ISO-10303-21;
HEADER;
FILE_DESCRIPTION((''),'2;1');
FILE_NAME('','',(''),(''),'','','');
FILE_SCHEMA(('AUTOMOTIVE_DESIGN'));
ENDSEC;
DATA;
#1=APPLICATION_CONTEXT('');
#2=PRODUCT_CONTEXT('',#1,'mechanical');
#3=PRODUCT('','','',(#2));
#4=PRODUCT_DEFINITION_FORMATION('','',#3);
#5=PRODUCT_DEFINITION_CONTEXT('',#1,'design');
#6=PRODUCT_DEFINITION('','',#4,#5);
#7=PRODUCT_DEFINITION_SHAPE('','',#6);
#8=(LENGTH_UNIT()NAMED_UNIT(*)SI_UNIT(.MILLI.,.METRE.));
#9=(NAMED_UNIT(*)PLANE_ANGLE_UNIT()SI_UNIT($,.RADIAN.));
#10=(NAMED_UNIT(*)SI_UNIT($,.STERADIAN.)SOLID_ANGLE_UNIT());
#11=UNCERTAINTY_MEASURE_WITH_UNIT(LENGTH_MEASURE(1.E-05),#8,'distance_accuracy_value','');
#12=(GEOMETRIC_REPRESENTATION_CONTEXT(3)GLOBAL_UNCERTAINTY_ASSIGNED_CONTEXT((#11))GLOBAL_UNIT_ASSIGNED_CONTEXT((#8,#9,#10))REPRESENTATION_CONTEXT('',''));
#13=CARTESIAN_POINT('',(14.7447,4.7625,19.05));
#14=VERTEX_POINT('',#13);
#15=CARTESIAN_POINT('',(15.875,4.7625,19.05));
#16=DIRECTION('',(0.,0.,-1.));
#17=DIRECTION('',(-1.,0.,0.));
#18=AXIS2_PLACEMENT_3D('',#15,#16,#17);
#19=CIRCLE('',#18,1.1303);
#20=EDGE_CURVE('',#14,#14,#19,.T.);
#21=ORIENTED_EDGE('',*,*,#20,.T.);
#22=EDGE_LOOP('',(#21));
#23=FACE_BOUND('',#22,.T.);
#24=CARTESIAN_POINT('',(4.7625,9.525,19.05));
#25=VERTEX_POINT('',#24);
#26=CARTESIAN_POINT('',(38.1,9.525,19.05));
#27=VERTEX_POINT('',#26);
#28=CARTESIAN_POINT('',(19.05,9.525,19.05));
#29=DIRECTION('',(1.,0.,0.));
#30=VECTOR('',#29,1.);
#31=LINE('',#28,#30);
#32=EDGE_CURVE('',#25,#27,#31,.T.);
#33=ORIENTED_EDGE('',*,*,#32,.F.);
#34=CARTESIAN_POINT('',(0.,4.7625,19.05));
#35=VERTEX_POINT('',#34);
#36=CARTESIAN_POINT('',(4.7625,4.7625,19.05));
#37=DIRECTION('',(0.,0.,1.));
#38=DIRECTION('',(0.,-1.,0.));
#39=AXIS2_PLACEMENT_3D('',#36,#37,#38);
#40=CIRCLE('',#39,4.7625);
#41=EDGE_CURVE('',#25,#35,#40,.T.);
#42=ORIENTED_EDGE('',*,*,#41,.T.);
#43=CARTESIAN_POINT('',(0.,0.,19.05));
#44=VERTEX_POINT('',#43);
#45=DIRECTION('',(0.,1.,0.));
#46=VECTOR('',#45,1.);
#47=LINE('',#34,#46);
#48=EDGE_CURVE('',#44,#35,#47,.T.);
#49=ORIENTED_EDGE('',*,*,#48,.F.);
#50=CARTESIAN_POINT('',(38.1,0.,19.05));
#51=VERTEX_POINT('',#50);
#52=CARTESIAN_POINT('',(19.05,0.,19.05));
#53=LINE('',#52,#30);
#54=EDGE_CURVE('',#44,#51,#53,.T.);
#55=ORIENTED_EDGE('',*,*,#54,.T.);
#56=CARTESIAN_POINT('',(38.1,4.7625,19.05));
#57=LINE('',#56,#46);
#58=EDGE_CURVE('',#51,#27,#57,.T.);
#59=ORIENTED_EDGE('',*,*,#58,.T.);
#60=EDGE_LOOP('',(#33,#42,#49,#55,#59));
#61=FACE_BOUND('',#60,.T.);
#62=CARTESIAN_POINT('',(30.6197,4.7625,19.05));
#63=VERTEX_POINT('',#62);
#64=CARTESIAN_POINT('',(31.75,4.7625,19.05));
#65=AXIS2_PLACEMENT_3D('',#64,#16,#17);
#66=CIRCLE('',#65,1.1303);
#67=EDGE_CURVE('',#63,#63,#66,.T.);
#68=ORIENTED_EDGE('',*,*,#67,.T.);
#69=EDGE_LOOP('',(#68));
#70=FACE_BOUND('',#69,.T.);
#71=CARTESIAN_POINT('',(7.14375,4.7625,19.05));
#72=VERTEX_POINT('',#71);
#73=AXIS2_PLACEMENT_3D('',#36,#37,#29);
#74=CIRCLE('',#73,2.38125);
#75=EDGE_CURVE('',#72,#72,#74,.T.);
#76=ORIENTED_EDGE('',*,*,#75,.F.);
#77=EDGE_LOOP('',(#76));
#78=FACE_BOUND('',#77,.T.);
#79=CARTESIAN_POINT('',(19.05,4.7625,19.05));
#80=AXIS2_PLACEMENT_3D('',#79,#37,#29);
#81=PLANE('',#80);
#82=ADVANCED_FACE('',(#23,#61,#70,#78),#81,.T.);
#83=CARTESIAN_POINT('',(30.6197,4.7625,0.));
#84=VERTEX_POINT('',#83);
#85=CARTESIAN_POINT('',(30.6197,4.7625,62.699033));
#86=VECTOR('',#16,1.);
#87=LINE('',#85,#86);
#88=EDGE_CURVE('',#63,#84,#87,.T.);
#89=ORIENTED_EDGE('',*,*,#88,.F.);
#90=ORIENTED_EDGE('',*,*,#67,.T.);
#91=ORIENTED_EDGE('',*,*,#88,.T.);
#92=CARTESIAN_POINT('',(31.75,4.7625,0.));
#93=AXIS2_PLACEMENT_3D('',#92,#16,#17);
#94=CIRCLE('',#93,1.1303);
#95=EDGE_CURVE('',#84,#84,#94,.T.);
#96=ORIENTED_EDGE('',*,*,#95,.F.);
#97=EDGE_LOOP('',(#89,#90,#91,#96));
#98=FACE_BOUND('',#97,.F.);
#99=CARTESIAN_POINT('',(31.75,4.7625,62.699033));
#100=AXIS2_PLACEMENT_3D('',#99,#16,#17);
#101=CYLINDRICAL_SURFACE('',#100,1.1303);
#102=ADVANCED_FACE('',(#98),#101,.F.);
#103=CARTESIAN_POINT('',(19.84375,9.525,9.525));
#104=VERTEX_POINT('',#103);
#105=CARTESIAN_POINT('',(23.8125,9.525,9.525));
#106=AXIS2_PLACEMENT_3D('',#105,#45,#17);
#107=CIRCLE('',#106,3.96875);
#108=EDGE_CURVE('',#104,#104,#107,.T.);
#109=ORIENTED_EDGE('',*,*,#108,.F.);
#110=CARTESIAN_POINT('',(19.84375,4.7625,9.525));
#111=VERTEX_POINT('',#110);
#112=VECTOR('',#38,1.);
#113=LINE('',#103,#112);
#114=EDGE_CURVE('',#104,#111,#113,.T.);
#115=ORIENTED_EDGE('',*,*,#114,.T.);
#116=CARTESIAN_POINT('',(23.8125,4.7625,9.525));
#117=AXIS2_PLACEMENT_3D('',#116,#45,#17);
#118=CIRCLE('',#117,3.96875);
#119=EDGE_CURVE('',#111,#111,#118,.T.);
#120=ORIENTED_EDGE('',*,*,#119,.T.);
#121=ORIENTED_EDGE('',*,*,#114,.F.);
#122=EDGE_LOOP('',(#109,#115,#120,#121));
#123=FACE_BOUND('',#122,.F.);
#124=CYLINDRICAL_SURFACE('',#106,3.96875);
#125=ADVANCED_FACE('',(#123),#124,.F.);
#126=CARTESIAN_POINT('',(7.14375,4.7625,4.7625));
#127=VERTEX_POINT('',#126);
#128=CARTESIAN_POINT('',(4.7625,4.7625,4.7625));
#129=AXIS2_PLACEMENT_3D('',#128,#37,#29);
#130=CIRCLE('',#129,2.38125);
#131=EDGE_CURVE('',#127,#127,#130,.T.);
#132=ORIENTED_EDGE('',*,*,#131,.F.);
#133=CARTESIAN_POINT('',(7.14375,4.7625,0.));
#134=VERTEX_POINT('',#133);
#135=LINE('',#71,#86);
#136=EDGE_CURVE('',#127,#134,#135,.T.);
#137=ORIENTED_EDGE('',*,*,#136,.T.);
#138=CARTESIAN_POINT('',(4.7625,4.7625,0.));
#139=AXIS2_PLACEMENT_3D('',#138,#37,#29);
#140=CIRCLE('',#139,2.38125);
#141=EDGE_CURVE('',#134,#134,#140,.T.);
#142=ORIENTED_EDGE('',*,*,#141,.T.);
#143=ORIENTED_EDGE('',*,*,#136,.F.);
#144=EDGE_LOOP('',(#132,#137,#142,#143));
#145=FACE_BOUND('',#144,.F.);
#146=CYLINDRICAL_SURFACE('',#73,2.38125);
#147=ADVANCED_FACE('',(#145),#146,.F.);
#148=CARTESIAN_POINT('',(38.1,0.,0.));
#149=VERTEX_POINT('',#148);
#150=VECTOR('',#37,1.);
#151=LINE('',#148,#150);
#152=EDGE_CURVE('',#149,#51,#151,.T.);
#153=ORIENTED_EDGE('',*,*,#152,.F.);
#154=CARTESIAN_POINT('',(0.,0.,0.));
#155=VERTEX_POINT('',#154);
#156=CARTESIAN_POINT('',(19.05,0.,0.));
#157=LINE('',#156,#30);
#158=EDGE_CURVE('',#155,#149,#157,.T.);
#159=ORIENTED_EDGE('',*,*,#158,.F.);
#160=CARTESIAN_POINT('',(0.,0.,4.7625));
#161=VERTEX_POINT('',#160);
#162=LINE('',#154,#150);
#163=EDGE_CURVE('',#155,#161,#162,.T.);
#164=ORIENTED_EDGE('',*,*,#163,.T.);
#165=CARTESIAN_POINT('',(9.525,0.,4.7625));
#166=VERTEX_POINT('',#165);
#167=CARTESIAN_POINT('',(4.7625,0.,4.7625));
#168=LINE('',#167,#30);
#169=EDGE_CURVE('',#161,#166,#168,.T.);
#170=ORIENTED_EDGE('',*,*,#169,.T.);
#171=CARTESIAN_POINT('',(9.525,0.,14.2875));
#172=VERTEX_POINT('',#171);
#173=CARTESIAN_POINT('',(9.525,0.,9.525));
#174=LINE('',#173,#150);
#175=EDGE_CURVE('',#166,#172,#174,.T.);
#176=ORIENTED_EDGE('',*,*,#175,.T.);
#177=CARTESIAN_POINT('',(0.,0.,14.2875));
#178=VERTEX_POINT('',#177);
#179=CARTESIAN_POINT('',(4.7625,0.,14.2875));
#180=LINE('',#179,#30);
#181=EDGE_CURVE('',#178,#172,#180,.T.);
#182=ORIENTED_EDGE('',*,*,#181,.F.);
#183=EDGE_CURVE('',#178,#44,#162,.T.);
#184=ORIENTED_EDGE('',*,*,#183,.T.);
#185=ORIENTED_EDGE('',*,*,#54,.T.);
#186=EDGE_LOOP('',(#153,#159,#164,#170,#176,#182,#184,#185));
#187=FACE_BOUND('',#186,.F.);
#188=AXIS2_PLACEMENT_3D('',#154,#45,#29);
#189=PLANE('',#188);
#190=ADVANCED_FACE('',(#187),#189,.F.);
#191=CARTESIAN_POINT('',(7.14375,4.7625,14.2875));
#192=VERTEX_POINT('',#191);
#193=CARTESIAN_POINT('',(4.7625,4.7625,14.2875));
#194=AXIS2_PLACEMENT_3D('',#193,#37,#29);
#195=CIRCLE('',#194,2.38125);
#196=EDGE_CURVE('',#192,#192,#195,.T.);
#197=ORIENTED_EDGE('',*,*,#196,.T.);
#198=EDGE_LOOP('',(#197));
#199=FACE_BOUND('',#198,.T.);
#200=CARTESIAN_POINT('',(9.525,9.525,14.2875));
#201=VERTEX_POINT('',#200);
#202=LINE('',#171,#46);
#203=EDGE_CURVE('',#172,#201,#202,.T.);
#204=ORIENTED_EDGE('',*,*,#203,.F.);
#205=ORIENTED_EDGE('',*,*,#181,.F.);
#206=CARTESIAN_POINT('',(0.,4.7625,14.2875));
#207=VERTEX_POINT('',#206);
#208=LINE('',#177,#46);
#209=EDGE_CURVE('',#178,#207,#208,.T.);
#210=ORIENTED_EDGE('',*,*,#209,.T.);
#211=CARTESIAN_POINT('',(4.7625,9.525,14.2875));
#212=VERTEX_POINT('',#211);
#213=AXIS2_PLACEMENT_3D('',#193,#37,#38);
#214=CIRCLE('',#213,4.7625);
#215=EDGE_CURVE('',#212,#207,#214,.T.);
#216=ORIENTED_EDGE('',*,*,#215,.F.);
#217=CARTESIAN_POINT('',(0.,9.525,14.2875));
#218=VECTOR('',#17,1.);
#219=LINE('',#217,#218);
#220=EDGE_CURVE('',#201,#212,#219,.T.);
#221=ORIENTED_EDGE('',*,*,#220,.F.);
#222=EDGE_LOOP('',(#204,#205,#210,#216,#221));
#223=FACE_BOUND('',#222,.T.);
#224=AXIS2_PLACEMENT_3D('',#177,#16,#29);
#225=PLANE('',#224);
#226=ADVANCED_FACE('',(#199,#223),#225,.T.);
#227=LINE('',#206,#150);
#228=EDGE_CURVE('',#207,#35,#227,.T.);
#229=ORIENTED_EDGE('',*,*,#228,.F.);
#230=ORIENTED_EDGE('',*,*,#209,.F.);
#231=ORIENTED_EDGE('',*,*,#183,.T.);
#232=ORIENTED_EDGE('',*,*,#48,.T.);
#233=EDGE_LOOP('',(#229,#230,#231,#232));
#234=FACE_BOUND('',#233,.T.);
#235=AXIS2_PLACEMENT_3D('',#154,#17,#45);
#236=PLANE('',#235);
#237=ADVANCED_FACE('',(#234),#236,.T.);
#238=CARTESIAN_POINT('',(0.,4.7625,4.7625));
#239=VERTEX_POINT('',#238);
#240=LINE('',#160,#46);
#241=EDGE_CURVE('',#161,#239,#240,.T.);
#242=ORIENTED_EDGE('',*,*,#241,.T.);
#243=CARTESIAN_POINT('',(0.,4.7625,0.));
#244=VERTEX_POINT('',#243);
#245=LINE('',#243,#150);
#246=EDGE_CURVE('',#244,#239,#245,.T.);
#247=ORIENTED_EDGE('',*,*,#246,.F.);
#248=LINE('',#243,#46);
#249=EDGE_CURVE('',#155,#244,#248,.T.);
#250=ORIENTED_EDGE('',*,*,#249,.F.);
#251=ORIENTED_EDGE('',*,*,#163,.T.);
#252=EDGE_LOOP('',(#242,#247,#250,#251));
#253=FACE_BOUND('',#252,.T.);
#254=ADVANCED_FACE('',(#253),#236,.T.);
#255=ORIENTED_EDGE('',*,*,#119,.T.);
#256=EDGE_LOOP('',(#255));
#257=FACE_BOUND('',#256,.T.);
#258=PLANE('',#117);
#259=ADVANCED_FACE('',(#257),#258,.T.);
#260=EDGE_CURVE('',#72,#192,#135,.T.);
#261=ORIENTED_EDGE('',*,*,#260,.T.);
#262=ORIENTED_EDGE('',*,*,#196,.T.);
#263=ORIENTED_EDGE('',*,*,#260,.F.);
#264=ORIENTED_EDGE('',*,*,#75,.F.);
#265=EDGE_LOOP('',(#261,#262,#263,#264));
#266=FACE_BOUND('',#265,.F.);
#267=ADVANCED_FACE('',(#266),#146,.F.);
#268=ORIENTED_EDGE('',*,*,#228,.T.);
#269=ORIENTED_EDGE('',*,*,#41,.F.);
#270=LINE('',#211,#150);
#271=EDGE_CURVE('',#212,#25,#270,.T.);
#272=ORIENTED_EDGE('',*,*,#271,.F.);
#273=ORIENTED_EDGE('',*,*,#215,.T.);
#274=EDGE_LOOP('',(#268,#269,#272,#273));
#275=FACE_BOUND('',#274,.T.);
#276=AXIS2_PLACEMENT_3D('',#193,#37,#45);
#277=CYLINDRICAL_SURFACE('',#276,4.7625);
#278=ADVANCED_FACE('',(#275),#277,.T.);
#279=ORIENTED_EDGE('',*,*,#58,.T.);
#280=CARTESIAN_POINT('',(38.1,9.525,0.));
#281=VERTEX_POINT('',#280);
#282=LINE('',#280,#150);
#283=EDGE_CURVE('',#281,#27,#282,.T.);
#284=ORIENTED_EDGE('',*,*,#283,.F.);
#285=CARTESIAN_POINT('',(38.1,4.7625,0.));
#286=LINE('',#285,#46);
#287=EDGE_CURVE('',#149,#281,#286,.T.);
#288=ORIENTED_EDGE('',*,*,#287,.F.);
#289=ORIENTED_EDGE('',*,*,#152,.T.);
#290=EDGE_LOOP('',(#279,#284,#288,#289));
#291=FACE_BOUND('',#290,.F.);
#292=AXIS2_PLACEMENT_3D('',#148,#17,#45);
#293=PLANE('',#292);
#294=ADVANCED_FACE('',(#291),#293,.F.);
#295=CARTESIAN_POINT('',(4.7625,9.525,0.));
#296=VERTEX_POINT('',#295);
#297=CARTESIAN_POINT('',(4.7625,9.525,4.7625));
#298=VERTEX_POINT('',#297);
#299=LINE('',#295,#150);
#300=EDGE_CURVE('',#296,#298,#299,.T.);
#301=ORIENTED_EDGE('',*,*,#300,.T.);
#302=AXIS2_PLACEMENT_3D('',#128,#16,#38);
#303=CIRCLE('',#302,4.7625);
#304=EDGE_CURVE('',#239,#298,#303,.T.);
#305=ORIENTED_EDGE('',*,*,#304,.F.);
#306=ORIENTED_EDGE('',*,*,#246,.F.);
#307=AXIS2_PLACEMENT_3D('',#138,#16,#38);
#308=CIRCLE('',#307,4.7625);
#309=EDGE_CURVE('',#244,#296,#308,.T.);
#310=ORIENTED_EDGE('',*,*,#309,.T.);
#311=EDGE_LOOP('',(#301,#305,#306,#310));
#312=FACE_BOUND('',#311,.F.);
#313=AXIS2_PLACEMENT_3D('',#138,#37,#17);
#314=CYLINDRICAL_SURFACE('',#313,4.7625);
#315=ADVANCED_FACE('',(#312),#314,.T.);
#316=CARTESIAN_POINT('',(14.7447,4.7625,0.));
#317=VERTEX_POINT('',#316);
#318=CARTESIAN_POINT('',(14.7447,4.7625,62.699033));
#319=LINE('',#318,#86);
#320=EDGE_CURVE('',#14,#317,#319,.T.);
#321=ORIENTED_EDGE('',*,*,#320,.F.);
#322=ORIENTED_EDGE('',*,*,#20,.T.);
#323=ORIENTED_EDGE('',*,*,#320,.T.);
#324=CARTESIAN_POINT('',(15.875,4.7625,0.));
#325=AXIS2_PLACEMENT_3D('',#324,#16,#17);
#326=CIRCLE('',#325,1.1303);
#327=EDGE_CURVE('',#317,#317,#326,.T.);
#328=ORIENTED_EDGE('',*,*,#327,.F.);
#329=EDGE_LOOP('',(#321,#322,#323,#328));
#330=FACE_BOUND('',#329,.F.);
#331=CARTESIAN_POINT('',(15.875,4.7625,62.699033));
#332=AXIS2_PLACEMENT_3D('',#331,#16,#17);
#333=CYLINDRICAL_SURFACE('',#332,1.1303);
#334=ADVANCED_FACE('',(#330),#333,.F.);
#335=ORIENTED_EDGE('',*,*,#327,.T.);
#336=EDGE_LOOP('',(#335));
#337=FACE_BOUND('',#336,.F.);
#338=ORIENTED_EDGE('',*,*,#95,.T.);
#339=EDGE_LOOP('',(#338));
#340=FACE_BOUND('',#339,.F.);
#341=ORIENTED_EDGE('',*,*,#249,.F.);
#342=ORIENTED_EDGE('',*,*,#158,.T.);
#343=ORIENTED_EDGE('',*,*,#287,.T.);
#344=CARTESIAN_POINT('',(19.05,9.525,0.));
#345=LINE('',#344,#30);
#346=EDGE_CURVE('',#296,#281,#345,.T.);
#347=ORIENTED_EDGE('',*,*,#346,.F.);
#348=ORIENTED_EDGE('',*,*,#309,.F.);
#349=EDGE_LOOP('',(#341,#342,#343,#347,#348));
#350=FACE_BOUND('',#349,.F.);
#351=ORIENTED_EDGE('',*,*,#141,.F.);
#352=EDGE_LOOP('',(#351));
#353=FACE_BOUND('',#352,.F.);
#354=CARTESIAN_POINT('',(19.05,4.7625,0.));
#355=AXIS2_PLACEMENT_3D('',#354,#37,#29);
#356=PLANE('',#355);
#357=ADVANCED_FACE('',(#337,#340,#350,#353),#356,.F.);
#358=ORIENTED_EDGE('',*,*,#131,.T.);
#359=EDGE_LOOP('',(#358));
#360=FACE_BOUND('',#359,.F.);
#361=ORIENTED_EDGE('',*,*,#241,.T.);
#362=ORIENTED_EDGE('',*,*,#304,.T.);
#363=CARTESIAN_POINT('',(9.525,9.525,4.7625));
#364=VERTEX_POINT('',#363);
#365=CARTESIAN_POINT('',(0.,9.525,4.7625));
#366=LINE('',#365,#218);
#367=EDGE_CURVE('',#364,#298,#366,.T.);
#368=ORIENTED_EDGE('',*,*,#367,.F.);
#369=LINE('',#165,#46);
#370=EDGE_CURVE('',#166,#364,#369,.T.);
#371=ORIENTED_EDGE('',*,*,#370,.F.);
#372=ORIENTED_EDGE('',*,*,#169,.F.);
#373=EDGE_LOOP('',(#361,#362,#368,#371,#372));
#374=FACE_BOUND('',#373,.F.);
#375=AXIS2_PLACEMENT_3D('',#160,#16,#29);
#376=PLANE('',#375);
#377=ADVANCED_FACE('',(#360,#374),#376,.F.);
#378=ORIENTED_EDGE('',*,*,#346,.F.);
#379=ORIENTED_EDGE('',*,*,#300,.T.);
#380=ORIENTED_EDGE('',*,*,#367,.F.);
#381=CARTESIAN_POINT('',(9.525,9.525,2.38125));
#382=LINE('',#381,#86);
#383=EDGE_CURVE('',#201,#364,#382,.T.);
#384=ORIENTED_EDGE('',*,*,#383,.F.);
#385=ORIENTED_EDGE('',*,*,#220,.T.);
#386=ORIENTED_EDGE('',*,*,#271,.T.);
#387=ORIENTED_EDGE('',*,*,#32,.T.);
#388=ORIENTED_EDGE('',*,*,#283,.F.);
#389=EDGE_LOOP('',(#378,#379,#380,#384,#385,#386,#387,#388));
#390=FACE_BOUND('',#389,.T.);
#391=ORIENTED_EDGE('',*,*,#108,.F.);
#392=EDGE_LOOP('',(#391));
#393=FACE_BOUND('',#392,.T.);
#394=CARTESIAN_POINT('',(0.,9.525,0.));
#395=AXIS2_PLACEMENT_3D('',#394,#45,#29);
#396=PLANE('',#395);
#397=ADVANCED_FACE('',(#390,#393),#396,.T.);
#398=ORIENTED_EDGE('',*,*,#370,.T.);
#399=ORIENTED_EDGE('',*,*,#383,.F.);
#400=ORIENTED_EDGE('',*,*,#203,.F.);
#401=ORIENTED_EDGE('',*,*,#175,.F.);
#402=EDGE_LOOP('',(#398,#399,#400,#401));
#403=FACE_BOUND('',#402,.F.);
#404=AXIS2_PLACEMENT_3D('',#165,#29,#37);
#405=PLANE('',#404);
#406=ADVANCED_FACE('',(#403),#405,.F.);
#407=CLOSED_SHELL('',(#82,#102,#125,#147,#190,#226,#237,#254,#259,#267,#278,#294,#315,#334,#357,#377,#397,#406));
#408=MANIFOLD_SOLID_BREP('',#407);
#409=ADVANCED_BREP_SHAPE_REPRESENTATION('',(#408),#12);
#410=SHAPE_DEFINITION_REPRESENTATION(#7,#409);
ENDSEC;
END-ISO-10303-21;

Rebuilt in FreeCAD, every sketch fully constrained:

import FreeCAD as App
import Part
import Sketcher

V = App.Vector
Q = App.Units.Quantity


def edges_at(feature, points):
    """Names of the edges that pass closest to the given points."""
    edges = feature.Shape.Edges
    near = lambda p: min(range(len(edges)), key=lambda i: edges[i].distToShape(Part.Vertex(*p))[0])
    return sorted({f"Edge{near(p) + 1}" for p in points})

doc = App.newDocument("Part")
body = doc.addObject("PartDesign::Body", "Body")

sketch1 = doc.addObject("Sketcher::SketchObject", "Sketch")
body.addObject(sketch1)
sketch1.AttachmentSupport = (doc.XY_Plane, [""])
sketch1.MapMode = "FlatFace"
sketch1.addGeometry(Part.LineSegment(V(0, 10, 0), V(0, 0, 0)), False)
sketch1.addGeometry(Part.LineSegment(V(0, 0, 0), V(38, 0, 0)), False)
sketch1.addGeometry(Part.LineSegment(V(38, 0, 0), V(38, 10, 0)), False)
sketch1.addGeometry(Part.LineSegment(V(38, 10, 0), V(0, 10, 0)), False)
sketch1.addConstraint(Sketcher.Constraint("Coincident", 0, 2, 1, 1))
sketch1.addConstraint(Sketcher.Constraint("Coincident", 1, 2, 2, 1))
sketch1.addConstraint(Sketcher.Constraint("Coincident", 2, 2, 3, 1))
sketch1.addConstraint(Sketcher.Constraint("Coincident", 3, 2, 0, 1))
sketch1.addConstraint(Sketcher.Constraint("Vertical", 0))
sketch1.addConstraint(Sketcher.Constraint("Horizontal", 1))
sketch1.addConstraint(Sketcher.Constraint("Vertical", 2))
sketch1.addConstraint(Sketcher.Constraint("Horizontal", 3))
sketch1.addConstraint(Sketcher.Constraint("Coincident", 0, 2, -1, 1))
sketch1.addConstraint(Sketcher.Constraint("DistanceX", 1, 1, 1, 2, Q("1.5 in")))
sketch1.addConstraint(Sketcher.Constraint("DistanceY", 0, 2, 0, 1, Q("0.375 in")))
pad1 = doc.addObject("PartDesign::Pad", "Pad")
body.addObject(pad1)
pad1.Profile = sketch1
pad1.Length = Q("0.75 in")

sketch2 = doc.addObject("Sketcher::SketchObject", "Sketch001")
body.addObject(sketch2)
sketch2.AttachmentSupport = (doc.XY_Plane, [""])
sketch2.MapMode = "FlatFace"
sketch2.AttachmentOffset = App.Placement(V(0, 0, 0.75 * 25.4), App.Rotation())
sketch2.addGeometry(Part.Circle(V(15.9, 4.8, 0), V(0, 0, 1), 1.1), False)
sketch2.addGeometry(Part.Circle(V(31.8, 4.8, 0), V(0, 0, 1), 1.1), False)
sketch2.addConstraint(Sketcher.Constraint("Equal", 0, 1))
sketch2.addConstraint(Sketcher.Constraint("Horizontal", 0, 3, 1, 3))
sketch2.addConstraint(Sketcher.Constraint("Diameter", 0, Q("0.089 in")))
sketch2.addConstraint(Sketcher.Constraint("DistanceX", -1, 1, 1, 3, Q("1.25 in")))
sketch2.addConstraint(Sketcher.Constraint("DistanceX", -1, 1, 0, 3, Q("0.625 in")))
sketch2.addConstraint(Sketcher.Constraint("DistanceY", -1, 1, 0, 3, Q("0.1875 in")))
doc.recompute()
hole = doc.addObject("PartDesign::Hole", "Hole")
body.addObject(hole)
hole.Profile = sketch2
hole.ThreadType = "None"
hole.Diameter = Q("0.089 in")
hole.DepthType = "ThroughAll"

sketch3 = doc.addObject("Sketcher::SketchObject", "Sketch002")
body.addObject(sketch3)
sketch3.AttachmentSupport = (doc.XZ_Plane, [""])
sketch3.MapMode = "FlatFace"
sketch3.addGeometry(Part.LineSegment(V(0, 14, 0), V(0, 5, 0)), False)
sketch3.addGeometry(Part.LineSegment(V(0, 5, 0), V(10, 5, 0)), False)
sketch3.addGeometry(Part.LineSegment(V(10, 5, 0), V(10, 14, 0)), False)
sketch3.addGeometry(Part.LineSegment(V(10, 14, 0), V(0, 14, 0)), False)
sketch3.addConstraint(Sketcher.Constraint("Coincident", 0, 2, 1, 1))
sketch3.addConstraint(Sketcher.Constraint("Coincident", 1, 2, 2, 1))
sketch3.addConstraint(Sketcher.Constraint("Coincident", 2, 2, 3, 1))
sketch3.addConstraint(Sketcher.Constraint("Coincident", 3, 2, 0, 1))
sketch3.addConstraint(Sketcher.Constraint("Vertical", 0))
sketch3.addConstraint(Sketcher.Constraint("Horizontal", 1))
sketch3.addConstraint(Sketcher.Constraint("Vertical", 2))
sketch3.addConstraint(Sketcher.Constraint("Horizontal", 3))
sketch3.addConstraint(Sketcher.Constraint("PointOnObject", 0, 2, -2))
sketch3.addConstraint(Sketcher.Constraint("Equal", 3, 0))
sketch3.addConstraint(Sketcher.Constraint("DistanceX", 1, 1, 1, 2, Q("0.375 in")))
sketch3.addConstraint(Sketcher.Constraint("DistanceY", -1, 1, 0, 2, Q("0.1875 in")))
pocket1 = doc.addObject("PartDesign::Pocket", "Pocket")
body.addObject(pocket1)
pocket1.Profile = sketch3
pocket1.Type = "ThroughAll"

sketch4 = doc.addObject("Sketcher::SketchObject", "Sketch003")
body.addObject(sketch4)
sketch4.AttachmentSupport = (doc.XY_Plane, [""])
sketch4.MapMode = "FlatFace"
sketch4.AttachmentOffset = App.Placement(V(0, 0, 0.75 * 25.4), App.Rotation())
sketch4.addGeometry(Part.Circle(V(4.8, 4.8, 0), V(0, 0, 1), 2.4), False)
sketch4.addConstraint(Sketcher.Constraint("Diameter", 0, Q("0.1875 in")))
sketch4.addConstraint(Sketcher.Constraint("DistanceX", -1, 1, 0, 3, Q("0.1875 in")))
sketch4.addConstraint(Sketcher.Constraint("DistanceY", -1, 1, 0, 3, Q("0.1875 in")))
pocket2 = doc.addObject("PartDesign::Pocket", "Pocket001")
body.addObject(pocket2)
pocket2.Profile = sketch4
pocket2.Type = "ThroughAll"
doc.recompute()

fillet = doc.addObject("PartDesign::Fillet", "Fillet")
body.addObject(fillet)
fillet.Base = (pocket2, edges_at(pocket2, [(0, 9.525, 16.669), (0, 9.525, 2.381)]))
fillet.Radius = Q("0.1875 in")

sketch5 = doc.addObject("Sketcher::SketchObject", "Sketch004")
body.addObject(sketch5)
sketch5.AttachmentSupport = (doc.XZ_Plane, [""])
sketch5.MapMode = "FlatFace"
sketch5.AttachmentOffset = App.Placement(V(0, 0, -0.375 * 25.4), App.Rotation())
sketch5.addGeometry(Part.Circle(V(23.8, 9.5, 0), V(0, 0, 1), 4), False)
sketch5.addConstraint(Sketcher.Constraint("Diameter", 0, Q("0.3125 in")))
sketch5.addConstraint(Sketcher.Constraint("DistanceX", -1, 1, 0, 3, Q("0.9375 in")))
sketch5.addConstraint(Sketcher.Constraint("DistanceY", -1, 1, 0, 3, Q("0.375 in")))
pocket3 = doc.addObject("PartDesign::Pocket", "Pocket002")
body.addObject(pocket3)
pocket3.Profile = sketch5
pocket3.Length = Q("0.1875 in")
pocket3.Reversed = True

doc.recompute()
